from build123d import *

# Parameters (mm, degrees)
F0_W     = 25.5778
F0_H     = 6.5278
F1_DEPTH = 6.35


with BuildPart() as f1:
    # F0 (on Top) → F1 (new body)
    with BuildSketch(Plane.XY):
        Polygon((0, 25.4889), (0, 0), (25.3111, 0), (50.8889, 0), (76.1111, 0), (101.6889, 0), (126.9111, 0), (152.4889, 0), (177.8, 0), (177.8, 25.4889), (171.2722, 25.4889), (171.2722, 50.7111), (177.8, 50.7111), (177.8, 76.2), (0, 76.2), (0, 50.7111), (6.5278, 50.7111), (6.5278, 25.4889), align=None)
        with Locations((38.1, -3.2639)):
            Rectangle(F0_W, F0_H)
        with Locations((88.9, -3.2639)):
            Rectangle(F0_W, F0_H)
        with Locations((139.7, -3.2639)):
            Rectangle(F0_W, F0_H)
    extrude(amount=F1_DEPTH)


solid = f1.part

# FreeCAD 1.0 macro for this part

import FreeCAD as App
import Part
import Sketcher
from FreeCAD import Vector
Q = App.Units.Quantity

doc = App.newDocument("Part")
params = doc.addObject("Spreadsheet::Sheet", "Params")
for row, (alias, value) in enumerate([
    ("sketch1_width", "7 in"),
    ("sketch1_width2", "1.007 in"),
    ("sketch1_width3", "0.257 in"),
    ("pad1_length", "0.25 in"),
], start=1):
    params.set(f"A{row}", alias)
    params.set(f"B{row}", "=" + value)
    params.setAlias(f"B{row}", alias)

body = doc.addObject("PartDesign::Body", "Body")

# Sketch on XY plane
sketch1 = body.newObject("Sketcher::SketchObject", "Sketch")
sketch1.AttachmentSupport = (doc.getObject("XY_Plane"), [""])
sketch1.MapMode = "FlatFace"
sketch1.addGeometry([
    Part.LineSegment(Vector(0, 25, 0), Vector(0, 0, 0)),  # 0
    Part.LineSegment(Vector(0, 0, 0), Vector(25, 0, 0)),  # 1
    Part.LineSegment(Vector(25, 0, 0), Vector(25, -7, 0)),  # 2
    Part.LineSegment(Vector(25, -7, 0), Vector(51, -7, 0)),  # 3
    Part.LineSegment(Vector(51, -7, 0), Vector(51, 0, 0)),  # 4
    Part.LineSegment(Vector(51, 0, 0), Vector(76, 0, 0)),  # 5
    Part.LineSegment(Vector(76, 0, 0), Vector(76, -7, 0)),  # 6
    Part.LineSegment(Vector(76, -7, 0), Vector(102, -7, 0)),  # 7
    Part.LineSegment(Vector(102, -7, 0), Vector(102, 0, 0)),  # 8
    Part.LineSegment(Vector(102, 0, 0), Vector(127, 0, 0)),  # 9
    Part.LineSegment(Vector(127, 0, 0), Vector(127, -7, 0)),  # 10
    Part.LineSegment(Vector(127, -7, 0), Vector(152, -7, 0)),  # 11
    Part.LineSegment(Vector(152, -7, 0), Vector(152, 0, 0)),  # 12
    Part.LineSegment(Vector(152, 0, 0), Vector(178, 0, 0)),  # 13
    Part.LineSegment(Vector(178, 0, 0), Vector(178, 25, 0)),  # 14
    Part.LineSegment(Vector(178, 25, 0), Vector(171, 25, 0)),  # 15
    Part.LineSegment(Vector(171, 25, 0), Vector(171, 51, 0)),  # 16
    Part.LineSegment(Vector(171, 51, 0), Vector(178, 51, 0)),  # 17
    Part.LineSegment(Vector(178, 51, 0), Vector(178, 76, 0)),  # 18
    Part.LineSegment(Vector(178, 76, 0), Vector(0, 76, 0)),  # 19
    Part.LineSegment(Vector(0, 76, 0), Vector(0, 51, 0)),  # 20
    Part.LineSegment(Vector(0, 51, 0), Vector(7, 51, 0)),  # 21
    Part.LineSegment(Vector(7, 51, 0), Vector(7, 25, 0)),  # 22
    Part.LineSegment(Vector(7, 25, 0), Vector(0, 25, 0)),  # 23
], False)
sketch1.addConstraint([
    Sketcher.Constraint("Coincident", 0, 2, 1, 1),
    Sketcher.Constraint("Coincident", 1, 2, 2, 1),
    Sketcher.Constraint("Coincident", 2, 2, 3, 1),
    Sketcher.Constraint("Coincident", 3, 2, 4, 1),
    Sketcher.Constraint("Coincident", 4, 2, 5, 1),
    Sketcher.Constraint("Coincident", 5, 2, 6, 1),
    Sketcher.Constraint("Coincident", 6, 2, 7, 1),
    Sketcher.Constraint("Coincident", 7, 2, 8, 1),
    Sketcher.Constraint("Coincident", 8, 2, 9, 1),
    Sketcher.Constraint("Coincident", 9, 2, 10, 1),
    Sketcher.Constraint("Coincident", 10, 2, 11, 1),
    Sketcher.Constraint("Coincident", 11, 2, 12, 1),
    Sketcher.Constraint("Coincident", 12, 2, 13, 1),
    Sketcher.Constraint("Coincident", 13, 2, 14, 1),
    Sketcher.Constraint("Coincident", 14, 2, 15, 1),
    Sketcher.Constraint("Coincident", 15, 2, 16, 1),
    Sketcher.Constraint("Coincident", 16, 2, 17, 1),
    Sketcher.Constraint("Coincident", 17, 2, 18, 1),
    Sketcher.Constraint("Coincident", 18, 2, 19, 1),
    Sketcher.Constraint("Coincident", 19, 2, 20, 1),
    Sketcher.Constraint("Coincident", 20, 2, 21, 1),
    Sketcher.Constraint("Coincident", 21, 2, 22, 1),
    Sketcher.Constraint("Coincident", 22, 2, 23, 1),
    Sketcher.Constraint("Coincident", 23, 2, 0, 1),
    Sketcher.Constraint("Vertical", 0),
    Sketcher.Constraint("Horizontal", 1),
    Sketcher.Constraint("Vertical", 2),
    Sketcher.Constraint("Horizontal", 3),
    Sketcher.Constraint("Vertical", 4),
    Sketcher.Constraint("Horizontal", 5),
    Sketcher.Constraint("Vertical", 6),
    Sketcher.Constraint("Horizontal", 7),
    Sketcher.Constraint("Vertical", 8),
    Sketcher.Constraint("Horizontal", 9),
    Sketcher.Constraint("Vertical", 10),
    Sketcher.Constraint("Horizontal", 11),
    Sketcher.Constraint("Vertical", 12),
    Sketcher.Constraint("Horizontal", 13),
    Sketcher.Constraint("Vertical", 14),
    Sketcher.Constraint("Horizontal", 15),
    Sketcher.Constraint("Vertical", 16),
    Sketcher.Constraint("Horizontal", 17),
    Sketcher.Constraint("Vertical", 18),
    Sketcher.Constraint("Horizontal", 19),
    Sketcher.Constraint("Vertical", 20),
    Sketcher.Constraint("Horizontal", 21),
    Sketcher.Constraint("Vertical", 22),
    Sketcher.Constraint("Horizontal", 23),
    Sketcher.Constraint("Coincident", 0, 2, -1, 1),
    Sketcher.Constraint("PointOnObject", 4, 2, -1),
    Sketcher.Constraint("PointOnObject", 8, 2, -1),
    Sketcher.Constraint("PointOnObject", 12, 2, -1),
    Sketcher.Constraint("PointOnObject", 19, 2, -2),
    Sketcher.Constraint("Horizontal", 3, 2, 6, 2),
    Sketcher.Constraint("Horizontal", 7, 2, 10, 2),
    Sketcher.Constraint("Horizontal", 17, 2, 20, 2),
    Sketcher.Constraint("Horizontal", 15, 2, 22, 2),
    Sketcher.Constraint("Vertical", 14, 2, 17, 2),
    Sketcher.Constraint("Equal", 3, 7),
    Sketcher.Constraint("Equal", 5, 9),
    Sketcher.Constraint("Equal", 7, 11),
    Sketcher.Constraint("Equal", 1, 13),
    Sketcher.Constraint("Equal", 17, 21),
    Sketcher.Constraint("Equal", 23, 2),
    Sketcher.Constraint("Equal", 9, 16),
    Sketcher.Constraint("Equal", 14, 18),
    Sketcher.Constraint("DistanceX", 19, 2, 19, 1, Q("7 in")),
    Sketcher.Constraint("DistanceY", -1, 1, 18, 2, Q("3 in")),
    Sketcher.Constraint("DistanceX", 1, 2, 5, 2, Q("2 in")),
    Sketcher.Constraint("DistanceX", 3, 1, 3, 2, Q("1.007 in")),
    Sketcher.Constraint("DistanceX", 15, 2, 15, 1, Q("0.257 in")),
])
sketch1.setExpression("Constraints[66]", "Params.sketch1_width")
sketch1.setExpression("Constraints[69]", "Params.sketch1_width2")
sketch1.setExpression("Constraints[70]", "Params.sketch1_width3")
pad1 = body.newObject("PartDesign::Pad", "Pad")
pad1.Profile = sketch1
pad1.setExpression("Length", "Params.pad1_length")

doc.recompute()
